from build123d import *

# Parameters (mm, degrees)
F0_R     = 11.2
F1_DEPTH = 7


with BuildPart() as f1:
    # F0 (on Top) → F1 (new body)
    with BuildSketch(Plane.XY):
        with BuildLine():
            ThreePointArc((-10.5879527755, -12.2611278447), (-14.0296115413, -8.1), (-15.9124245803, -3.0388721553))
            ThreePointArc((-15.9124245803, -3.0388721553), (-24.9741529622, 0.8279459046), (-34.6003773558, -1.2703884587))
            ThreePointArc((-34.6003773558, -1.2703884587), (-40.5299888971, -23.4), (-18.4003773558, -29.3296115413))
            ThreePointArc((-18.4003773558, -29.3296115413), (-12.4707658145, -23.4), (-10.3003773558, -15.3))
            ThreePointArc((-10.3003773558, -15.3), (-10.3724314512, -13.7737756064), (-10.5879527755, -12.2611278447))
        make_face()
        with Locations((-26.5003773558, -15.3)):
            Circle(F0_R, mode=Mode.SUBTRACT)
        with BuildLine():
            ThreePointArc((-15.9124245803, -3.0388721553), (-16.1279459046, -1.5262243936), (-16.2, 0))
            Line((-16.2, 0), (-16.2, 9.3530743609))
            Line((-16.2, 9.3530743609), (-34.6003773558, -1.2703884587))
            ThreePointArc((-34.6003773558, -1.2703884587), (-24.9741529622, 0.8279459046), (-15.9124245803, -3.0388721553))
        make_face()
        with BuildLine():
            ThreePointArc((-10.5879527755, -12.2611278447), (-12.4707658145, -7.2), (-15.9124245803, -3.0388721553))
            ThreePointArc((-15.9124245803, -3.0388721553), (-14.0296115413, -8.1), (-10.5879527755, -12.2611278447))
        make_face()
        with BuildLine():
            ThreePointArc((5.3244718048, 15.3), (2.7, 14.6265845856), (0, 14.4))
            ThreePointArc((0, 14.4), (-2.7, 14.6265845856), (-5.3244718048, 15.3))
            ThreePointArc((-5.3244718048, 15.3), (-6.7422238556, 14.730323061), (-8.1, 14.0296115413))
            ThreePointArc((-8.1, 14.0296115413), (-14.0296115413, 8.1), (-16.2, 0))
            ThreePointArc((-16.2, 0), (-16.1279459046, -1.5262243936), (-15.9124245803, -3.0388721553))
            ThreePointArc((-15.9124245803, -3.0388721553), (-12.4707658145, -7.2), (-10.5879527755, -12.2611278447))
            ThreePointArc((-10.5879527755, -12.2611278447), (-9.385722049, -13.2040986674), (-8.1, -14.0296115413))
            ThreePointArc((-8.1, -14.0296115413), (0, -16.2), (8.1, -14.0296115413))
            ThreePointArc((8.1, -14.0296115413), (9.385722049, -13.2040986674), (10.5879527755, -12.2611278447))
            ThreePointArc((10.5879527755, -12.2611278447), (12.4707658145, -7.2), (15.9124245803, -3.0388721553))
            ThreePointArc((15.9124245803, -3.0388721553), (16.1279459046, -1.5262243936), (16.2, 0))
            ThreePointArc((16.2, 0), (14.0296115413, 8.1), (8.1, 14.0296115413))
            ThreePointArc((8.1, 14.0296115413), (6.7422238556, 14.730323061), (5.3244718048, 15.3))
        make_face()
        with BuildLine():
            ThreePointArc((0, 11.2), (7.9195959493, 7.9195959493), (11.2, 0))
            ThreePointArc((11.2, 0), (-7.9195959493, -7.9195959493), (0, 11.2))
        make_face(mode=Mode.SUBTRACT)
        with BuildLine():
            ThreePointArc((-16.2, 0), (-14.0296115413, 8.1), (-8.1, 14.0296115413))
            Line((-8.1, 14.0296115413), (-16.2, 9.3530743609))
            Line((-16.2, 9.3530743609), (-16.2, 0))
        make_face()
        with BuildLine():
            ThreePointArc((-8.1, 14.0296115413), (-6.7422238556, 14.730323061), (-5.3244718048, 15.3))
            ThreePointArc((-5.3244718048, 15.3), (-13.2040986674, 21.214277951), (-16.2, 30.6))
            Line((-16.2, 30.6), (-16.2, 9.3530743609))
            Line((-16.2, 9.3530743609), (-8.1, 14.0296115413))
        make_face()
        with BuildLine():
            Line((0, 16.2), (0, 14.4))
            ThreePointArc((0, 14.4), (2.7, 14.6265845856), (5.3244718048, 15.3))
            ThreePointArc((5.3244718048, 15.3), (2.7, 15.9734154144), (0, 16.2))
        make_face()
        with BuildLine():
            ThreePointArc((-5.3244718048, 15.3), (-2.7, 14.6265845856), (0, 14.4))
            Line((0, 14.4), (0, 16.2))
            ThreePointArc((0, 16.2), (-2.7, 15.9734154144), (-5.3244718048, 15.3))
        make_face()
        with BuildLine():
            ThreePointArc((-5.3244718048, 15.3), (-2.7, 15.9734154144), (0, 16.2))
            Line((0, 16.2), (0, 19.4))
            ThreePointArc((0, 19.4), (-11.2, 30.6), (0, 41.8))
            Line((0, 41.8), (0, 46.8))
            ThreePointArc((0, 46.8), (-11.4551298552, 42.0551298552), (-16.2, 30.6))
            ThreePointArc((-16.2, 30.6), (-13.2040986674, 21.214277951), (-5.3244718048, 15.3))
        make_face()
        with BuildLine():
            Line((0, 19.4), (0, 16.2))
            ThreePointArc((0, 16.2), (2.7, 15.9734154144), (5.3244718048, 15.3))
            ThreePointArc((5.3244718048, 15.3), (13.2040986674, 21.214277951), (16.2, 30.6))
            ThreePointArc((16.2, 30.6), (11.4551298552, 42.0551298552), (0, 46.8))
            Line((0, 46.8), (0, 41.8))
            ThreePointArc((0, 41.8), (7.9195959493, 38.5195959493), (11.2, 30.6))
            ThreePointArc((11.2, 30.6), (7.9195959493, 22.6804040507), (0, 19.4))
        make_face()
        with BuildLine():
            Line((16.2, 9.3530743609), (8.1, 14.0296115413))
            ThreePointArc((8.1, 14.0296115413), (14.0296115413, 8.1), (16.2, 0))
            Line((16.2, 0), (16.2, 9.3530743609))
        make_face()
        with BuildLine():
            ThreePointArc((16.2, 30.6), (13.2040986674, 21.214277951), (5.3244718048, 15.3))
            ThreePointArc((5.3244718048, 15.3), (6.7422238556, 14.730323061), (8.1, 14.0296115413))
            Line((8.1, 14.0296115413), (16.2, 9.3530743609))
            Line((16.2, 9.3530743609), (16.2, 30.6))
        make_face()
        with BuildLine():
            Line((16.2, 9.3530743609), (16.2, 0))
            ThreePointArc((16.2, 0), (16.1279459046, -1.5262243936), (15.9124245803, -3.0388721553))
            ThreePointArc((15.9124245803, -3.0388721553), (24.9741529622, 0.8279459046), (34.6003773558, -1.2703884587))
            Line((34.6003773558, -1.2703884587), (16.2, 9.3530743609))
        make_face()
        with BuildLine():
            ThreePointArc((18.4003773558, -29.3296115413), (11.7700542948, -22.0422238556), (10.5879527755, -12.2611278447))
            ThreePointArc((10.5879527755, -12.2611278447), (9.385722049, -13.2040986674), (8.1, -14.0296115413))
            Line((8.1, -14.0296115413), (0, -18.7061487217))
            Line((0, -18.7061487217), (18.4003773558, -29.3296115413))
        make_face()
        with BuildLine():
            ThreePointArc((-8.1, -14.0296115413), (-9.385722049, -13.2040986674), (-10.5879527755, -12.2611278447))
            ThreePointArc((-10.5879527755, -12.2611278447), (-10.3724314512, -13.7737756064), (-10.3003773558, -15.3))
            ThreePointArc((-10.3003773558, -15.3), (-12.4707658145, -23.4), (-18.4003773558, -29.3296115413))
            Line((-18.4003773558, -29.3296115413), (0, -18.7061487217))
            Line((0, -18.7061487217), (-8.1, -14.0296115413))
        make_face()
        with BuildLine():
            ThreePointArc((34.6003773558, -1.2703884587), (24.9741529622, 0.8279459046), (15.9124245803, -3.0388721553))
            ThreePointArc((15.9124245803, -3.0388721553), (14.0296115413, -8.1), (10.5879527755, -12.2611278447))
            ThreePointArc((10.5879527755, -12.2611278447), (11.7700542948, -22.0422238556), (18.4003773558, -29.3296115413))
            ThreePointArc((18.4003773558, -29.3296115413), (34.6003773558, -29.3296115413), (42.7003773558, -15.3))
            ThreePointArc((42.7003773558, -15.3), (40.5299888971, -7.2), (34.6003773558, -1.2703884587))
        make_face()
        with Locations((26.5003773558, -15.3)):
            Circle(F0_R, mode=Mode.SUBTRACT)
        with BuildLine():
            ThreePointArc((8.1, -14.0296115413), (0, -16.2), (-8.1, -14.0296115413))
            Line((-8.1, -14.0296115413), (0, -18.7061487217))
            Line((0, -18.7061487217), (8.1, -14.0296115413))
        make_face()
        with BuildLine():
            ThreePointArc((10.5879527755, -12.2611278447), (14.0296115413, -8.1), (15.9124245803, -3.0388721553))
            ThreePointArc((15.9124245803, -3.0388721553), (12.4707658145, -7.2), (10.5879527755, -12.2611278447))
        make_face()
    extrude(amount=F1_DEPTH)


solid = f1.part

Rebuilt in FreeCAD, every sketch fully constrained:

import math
import FreeCAD as App
import Part
import Sketcher

V = App.Vector
Q = App.Units.Quantity

doc = App.newDocument("Part")
body = doc.addObject("PartDesign::Body", "Body")

# Sketch on XY plane
sketch1 = body.newObject("Sketcher::SketchObject", "Sketch")
sketch1.AttachmentSupport = (doc.getObject("XY_Plane"), [""])
sketch1.MapMode = "FlatFace"
sketch1.addGeometry([
    Part.ArcOfCircle(Part.Circle(V(-26.500377, -15.3, 0), V(0, 0, 1), 16.2), math.radians(120), math.radians(300)),  # 0
    Part.LineSegment(V(-18.400377, -29.329612, 0), V(0, -18.706149, 0)),  # 1
    Part.LineSegment(V(0, -18.706149, 0), V(18.400377, -29.329612, 0)),  # 2
    Part.ArcOfCircle(Part.Circle(V(26.500377, -15.3, 0), V(0, 0, 1), 16.2), math.radians(-120), math.radians(0)),  # 3
    Part.ArcOfCircle(Part.Circle(V(26.500377, -15.3, 0), V(0, 0, 1), 16.2), math.radians(0), math.radians(60)),  # 4
    Part.LineSegment(V(34.600377, -1.270388, 0), V(16.2, 9.353074, 0)),  # 5
    Part.LineSegment(V(16.2, 9.353074, 0), V(16.2, 30.6, 0)),  # 6
    Part.ArcOfCircle(Part.Circle(V(0, 30.6, 0), V(0, 0, 1), 16.2), math.radians(0), math.radians(90)),  # 7
    Part.ArcOfCircle(Part.Circle(V(0, 30.6, 0), V(0, 0, 1), 16.2), math.radians(90), math.radians(180)),  # 8
    Part.LineSegment(V(-16.2, 30.6, 0), V(-16.2, 9.353074, 0)),  # 9
    Part.LineSegment(V(-16.2, 9.353074, 0), V(-34.600377, -1.270388, 0)),  # 10
    Part.Circle(V(-26.500377, -15.3, 0), V(0, 0, 1), 11.2),  # 11
    Part.ArcOfCircle(Part.Circle(V(0, 0, 0), V(0, 0, 1), 11.2), math.radians(90), math.radians(360)),  # 12
    Part.ArcOfCircle(Part.Circle(V(0, 0, 0), V(0, 0, 1), 11.2), math.radians(0), math.radians(90)),  # 13
    Part.Circle(V(26.500377, -15.3, 0), V(0, 0, 1), 11.2),  # 14
    Part.ArcOfCircle(Part.Circle(V(0, 30.6, 0), V(0, 0, 1), 11.2), math.radians(90), math.radians(270)),  # 15
    Part.ArcOfCircle(Part.Circle(V(0, 30.6, 0), V(0, 0, 1), 11.2), math.radians(0), math.radians(90)),  # 16
    Part.ArcOfCircle(Part.Circle(V(0, 30.6, 0), V(0, 0, 1), 11.2), math.radians(-90), math.radians(0)),  # 17
], False)
sketch1.addConstraint([
    Sketcher.Constraint("Tangent", 0, 2, 1, 1),
    Sketcher.Constraint("Coincident", 1, 2, 2, 1),
    Sketcher.Constraint("Tangent", 2, 2, 3, 1),
    Sketcher.Constraint("Tangent", 3, 2, 4, 1),
    Sketcher.Constraint("Tangent", 4, 2, 5, 1),
    Sketcher.Constraint("Coincident", 5, 2, 6, 1),
    Sketcher.Constraint("Tangent", 6, 2, 7, 1),
    Sketcher.Constraint("Tangent", 7, 2, 8, 1),
    Sketcher.Constraint("Tangent", 8, 2, 9, 1),
    Sketcher.Constraint("Coincident", 9, 2, 10, 1),
    Sketcher.Constraint("Tangent", 10, 2, 0, 1),
    Sketcher.Constraint("Tangent", 12, 1, 13, 2),
    Sketcher.Constraint("Coincident", 13, 1, 12, 2),
    Sketcher.Constraint("Tangent", 15, 1, 16, 2),
    Sketcher.Constraint("Tangent", 16, 1, 17, 2),
    Sketcher.Constraint("Tangent", 17, 1, 15, 2),
    Sketcher.Constraint("Vertical", 6),
    Sketcher.Constraint("Vertical", 9),
    Sketcher.Constraint("Coincident", 12, 3, -1, 1),
    Sketcher.Constraint("Coincident", 11, 3, 0, 3),
    Sketcher.Constraint("Coincident", 14, 3, 3, 3),
    Sketcher.Constraint("Coincident", 15, 3, 7, 3),
    Sketcher.Constraint("Equal", 0, 3),
    Sketcher.Constraint("Equal", 3, 4),
    Sketcher.Constraint("Equal", 4, 7),
    Sketcher.Constraint("Equal", 7, 8),
    Sketcher.Constraint("Equal", 11, 12),
    Sketcher.Constraint("Equal", 13, 14),
    Sketcher.Constraint("Equal", 14, 15),
    Sketcher.Constraint("Symmetric", 0, 3, 3, 3, -2),
    Sketcher.Constraint("Symmetric", 5, 2, 9, 2, -2),
    Sketcher.Constraint("PointOnObject", 1, 2, -2),
    Sketcher.Constraint("PointOnObject", 7, 2, -2),
    Sketcher.Constraint("PointOnObject", 12, 1, -2),
    Sketcher.Constraint("PointOnObject", 13, 1, -1),
    Sketcher.Constraint("PointOnObject", 15, 1, -2),
    Sketcher.Constraint("PointOnObject", 17, 1, -2),
    Sketcher.Constraint("Parallel", 2, 5),
    Sketcher.Constraint("Horizontal", 14, 3, 3, 2),
    Sketcher.Constraint("Horizontal", 8, 2, 16, 1),
    Sketcher.Constraint("Equal", 2, 5),
    Sketcher.Constraint("Diameter", 11, Q("22.4 mm")),
    Sketcher.Constraint("Radius", 0, Q("16.2 mm")),
    Sketcher.Constraint("DistanceY", 0, 3, -1, 1, Q("15.3 mm")),
    Sketcher.Constraint("DistanceY", -1, 1, 7, 3, Q("30.6 mm")),
    Sketcher.Constraint("DistanceY", 6, 1, 6, 2, Q("21.246926 mm")),
])
pad1 = body.newObject("PartDesign::Pad", "Pad")
pad1.Profile = sketch1
pad1.Length = 7

doc.recompute()
